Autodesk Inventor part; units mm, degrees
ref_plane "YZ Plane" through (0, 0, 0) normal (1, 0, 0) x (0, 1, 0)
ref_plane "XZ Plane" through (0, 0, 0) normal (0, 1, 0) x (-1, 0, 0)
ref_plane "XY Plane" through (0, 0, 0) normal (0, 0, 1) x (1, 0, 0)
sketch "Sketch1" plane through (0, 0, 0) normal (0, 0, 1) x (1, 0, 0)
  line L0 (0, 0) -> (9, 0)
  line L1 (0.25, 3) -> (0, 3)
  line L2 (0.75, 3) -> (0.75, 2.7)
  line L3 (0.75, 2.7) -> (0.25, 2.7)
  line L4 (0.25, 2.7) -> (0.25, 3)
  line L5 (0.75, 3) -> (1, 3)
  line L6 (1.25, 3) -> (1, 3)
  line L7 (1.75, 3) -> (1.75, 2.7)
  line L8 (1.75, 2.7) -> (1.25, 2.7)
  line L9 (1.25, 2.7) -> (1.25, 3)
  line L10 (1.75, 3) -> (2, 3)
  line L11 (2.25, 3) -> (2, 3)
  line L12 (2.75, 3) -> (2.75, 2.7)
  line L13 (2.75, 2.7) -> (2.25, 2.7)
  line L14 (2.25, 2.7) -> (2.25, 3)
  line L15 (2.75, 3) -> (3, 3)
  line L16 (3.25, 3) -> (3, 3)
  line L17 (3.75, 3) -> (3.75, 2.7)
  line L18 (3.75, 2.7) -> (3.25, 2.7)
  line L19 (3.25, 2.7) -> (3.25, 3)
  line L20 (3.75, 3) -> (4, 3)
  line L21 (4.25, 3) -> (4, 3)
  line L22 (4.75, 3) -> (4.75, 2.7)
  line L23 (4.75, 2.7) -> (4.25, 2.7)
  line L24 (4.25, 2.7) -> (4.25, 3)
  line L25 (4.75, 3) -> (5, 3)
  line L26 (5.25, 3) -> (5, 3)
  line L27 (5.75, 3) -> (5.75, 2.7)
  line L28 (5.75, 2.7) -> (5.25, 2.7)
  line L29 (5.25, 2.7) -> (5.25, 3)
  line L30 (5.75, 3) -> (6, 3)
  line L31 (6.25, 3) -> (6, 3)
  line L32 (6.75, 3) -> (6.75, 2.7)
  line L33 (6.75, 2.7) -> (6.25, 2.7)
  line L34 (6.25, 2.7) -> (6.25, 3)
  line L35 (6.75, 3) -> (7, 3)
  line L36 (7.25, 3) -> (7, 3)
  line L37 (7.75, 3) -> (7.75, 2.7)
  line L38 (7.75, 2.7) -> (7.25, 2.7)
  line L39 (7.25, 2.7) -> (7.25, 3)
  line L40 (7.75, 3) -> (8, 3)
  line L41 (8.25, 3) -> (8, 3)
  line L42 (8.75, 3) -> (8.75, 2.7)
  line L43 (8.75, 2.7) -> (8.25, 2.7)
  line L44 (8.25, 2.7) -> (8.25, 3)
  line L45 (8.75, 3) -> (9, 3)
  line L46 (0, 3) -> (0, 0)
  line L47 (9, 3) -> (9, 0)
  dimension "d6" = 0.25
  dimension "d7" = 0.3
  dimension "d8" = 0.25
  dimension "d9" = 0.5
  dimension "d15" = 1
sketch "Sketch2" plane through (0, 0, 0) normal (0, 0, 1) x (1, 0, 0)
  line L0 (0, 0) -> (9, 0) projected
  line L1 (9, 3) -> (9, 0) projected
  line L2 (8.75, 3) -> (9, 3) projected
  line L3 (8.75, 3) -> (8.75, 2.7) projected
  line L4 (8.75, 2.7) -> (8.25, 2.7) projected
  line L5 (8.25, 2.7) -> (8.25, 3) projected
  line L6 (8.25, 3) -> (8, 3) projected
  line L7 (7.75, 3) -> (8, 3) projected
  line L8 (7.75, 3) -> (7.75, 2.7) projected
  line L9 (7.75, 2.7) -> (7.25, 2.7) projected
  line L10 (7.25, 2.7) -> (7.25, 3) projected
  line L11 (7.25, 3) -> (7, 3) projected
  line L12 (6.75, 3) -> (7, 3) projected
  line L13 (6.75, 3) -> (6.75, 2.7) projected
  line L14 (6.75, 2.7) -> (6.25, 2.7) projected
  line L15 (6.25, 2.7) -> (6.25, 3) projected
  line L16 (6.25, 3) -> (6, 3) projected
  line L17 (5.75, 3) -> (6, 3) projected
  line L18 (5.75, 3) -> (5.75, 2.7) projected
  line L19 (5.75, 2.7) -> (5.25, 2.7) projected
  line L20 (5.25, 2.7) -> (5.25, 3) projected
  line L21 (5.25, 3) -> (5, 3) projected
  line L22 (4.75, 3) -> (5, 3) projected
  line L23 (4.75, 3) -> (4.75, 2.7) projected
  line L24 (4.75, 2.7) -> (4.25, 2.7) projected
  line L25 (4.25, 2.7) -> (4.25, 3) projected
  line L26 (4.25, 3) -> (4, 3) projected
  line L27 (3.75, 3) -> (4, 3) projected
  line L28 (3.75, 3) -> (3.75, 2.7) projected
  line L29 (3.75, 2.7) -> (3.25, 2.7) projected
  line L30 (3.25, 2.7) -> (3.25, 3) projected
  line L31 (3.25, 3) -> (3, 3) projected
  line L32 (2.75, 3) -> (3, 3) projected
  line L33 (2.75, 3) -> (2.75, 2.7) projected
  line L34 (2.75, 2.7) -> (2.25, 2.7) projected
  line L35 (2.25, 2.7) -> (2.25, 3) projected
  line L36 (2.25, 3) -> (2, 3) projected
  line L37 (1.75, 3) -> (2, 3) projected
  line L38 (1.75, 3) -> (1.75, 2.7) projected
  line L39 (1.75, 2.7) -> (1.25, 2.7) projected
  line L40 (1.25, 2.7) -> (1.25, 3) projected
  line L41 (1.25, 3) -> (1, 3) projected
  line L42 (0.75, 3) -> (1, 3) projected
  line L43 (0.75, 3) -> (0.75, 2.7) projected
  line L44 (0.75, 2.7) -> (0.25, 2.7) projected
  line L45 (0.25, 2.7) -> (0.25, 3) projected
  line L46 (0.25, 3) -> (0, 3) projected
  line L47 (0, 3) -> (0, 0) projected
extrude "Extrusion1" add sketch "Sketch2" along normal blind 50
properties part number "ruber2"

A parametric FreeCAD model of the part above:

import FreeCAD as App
import Part
import Sketcher


def add_polygon(sketch, points):
    """Adds a closed chain of lines whose ends are joined by coincident constraints."""
    first, n = sketch.GeometryCount, len(points)
    for a, b in zip(points, points[1:] + points[:1]):
        sketch.addGeometry(Part.LineSegment(App.Vector(*a, 0), App.Vector(*b, 0)), False)
    for i in range(n):
        sketch.addConstraint(Sketcher.Constraint("Coincident", first + i, 2, first + (i + 1) % n, 1))

doc = App.newDocument("Part")
params = doc.addObject("Spreadsheet::Sheet", "Params")
for row, (alias, value) in enumerate([
    ("sketch1_width", "9 mm"),
    ("sketch1_height", "3 mm"),
    ("sketch1_width2", "0.5 mm"),
    ("sketch1_height2", "0.3 mm"),
    ("pad1_length", "50 mm"),
], start=1):
    params.set(f"A{row}", alias)
    params.set(f"B{row}", "=" + value)
    params.setAlias(f"B{row}", alias)

body = doc.addObject("PartDesign::Body", "Body")

# Sketch on XY plane
sketch1 = body.newObject("Sketcher::SketchObject", "Sketch")
sketch1.AttachmentSupport = (doc.getObject("XY_Plane"), [""])
sketch1.MapMode = "FlatFace"
add_polygon(sketch1, [(0, 3), (0, 0), (9, 0), (9, 3), (8.75, 3), (8.75, 2.7), (8.25, 2.7), (8.25, 3), (7.75, 3), (7.75, 2.7), (7.25, 2.7), (7.25, 3), (6.75, 3), (6.75, 2.7), (6.25, 2.7), (6.25, 3), (5.75, 3), (5.75, 2.7), (5.25, 2.7), (5.25, 3), (4.75, 3), (4.75, 2.7), (4.25, 2.7), (4.25, 3), (3.75, 3), (3.75, 2.7), (3.25, 2.7), (3.25, 3), (2.75, 3), (2.75, 2.7), (2.25, 2.7), (2.25, 3), (1.75, 3), (1.75, 2.7), (1.25, 2.7), (1.25, 3), (0.75, 3), (0.75, 2.7), (0.25, 2.7), (0.25, 3)])  # lines 0-39
sketch1.addConstraint(Sketcher.Constraint("Vertical", 0))
sketch1.addConstraint(Sketcher.Constraint("Horizontal", 1))
sketch1.addConstraint(Sketcher.Constraint("Vertical", 2))
sketch1.addConstraint(Sketcher.Constraint("Horizontal", 3))
sketch1.addConstraint(Sketcher.Constraint("Vertical", 4))
sketch1.addConstraint(Sketcher.Constraint("Horizontal", 5))
sketch1.addConstraint(Sketcher.Constraint("Vertical", 6))
sketch1.addConstraint(Sketcher.Constraint("Horizontal", 7))
sketch1.addConstraint(Sketcher.Constraint("Vertical", 8))
sketch1.addConstraint(Sketcher.Constraint("Horizontal", 9))
sketch1.addConstraint(Sketcher.Constraint("Vertical", 10))
sketch1.addConstraint(Sketcher.Constraint("Horizontal", 11))
sketch1.addConstraint(Sketcher.Constraint("Vertical", 12))
sketch1.addConstraint(Sketcher.Constraint("Horizontal", 13))
sketch1.addConstraint(Sketcher.Constraint("Vertical", 14))
sketch1.addConstraint(Sketcher.Constraint("Horizontal", 15))
sketch1.addConstraint(Sketcher.Constraint("Vertical", 16))
sketch1.addConstraint(Sketcher.Constraint("Horizontal", 17))
sketch1.addConstraint(Sketcher.Constraint("Vertical", 18))
sketch1.addConstraint(Sketcher.Constraint("Horizontal", 19))
sketch1.addConstraint(Sketcher.Constraint("Vertical", 20))
sketch1.addConstraint(Sketcher.Constraint("Horizontal", 21))
sketch1.addConstraint(Sketcher.Constraint("Vertical", 22))
sketch1.addConstraint(Sketcher.Constraint("Horizontal", 23))
sketch1.addConstraint(Sketcher.Constraint("Vertical", 24))
sketch1.addConstraint(Sketcher.Constraint("Horizontal", 25))
sketch1.addConstraint(Sketcher.Constraint("Vertical", 26))
sketch1.addConstraint(Sketcher.Constraint("Horizontal", 27))
sketch1.addConstraint(Sketcher.Constraint("Vertical", 28))
sketch1.addConstraint(Sketcher.Constraint("Horizontal", 29))
sketch1.addConstraint(Sketcher.Constraint("Vertical", 30))
sketch1.addConstraint(Sketcher.Constraint("Horizontal", 31))
sketch1.addConstraint(Sketcher.Constraint("Vertical", 32))
sketch1.addConstraint(Sketcher.Constraint("Horizontal", 33))
sketch1.addConstraint(Sketcher.Constraint("Vertical", 34))
sketch1.addConstraint(Sketcher.Constraint("Horizontal", 35))
sketch1.addConstraint(Sketcher.Constraint("Vertical", 36))
sketch1.addConstraint(Sketcher.Constraint("Horizontal", 37))
sketch1.addConstraint(Sketcher.Constraint("Vertical", 38))
sketch1.addConstraint(Sketcher.Constraint("Horizontal", 39))
sketch1.addConstraint(Sketcher.Constraint("Coincident", 0, 2, -1, 1))
sketch1.addConstraint(Sketcher.Constraint("Horizontal", 3, 2, 6, 2))
sketch1.addConstraint(Sketcher.Constraint("Horizontal", 5, 2, 8, 2))
sketch1.addConstraint(Sketcher.Constraint("Horizontal", 7, 2, 10, 2))
sketch1.addConstraint(Sketcher.Constraint("Horizontal", 9, 2, 12, 2))
sketch1.addConstraint(Sketcher.Constraint("Horizontal", 11, 2, 14, 2))
sketch1.addConstraint(Sketcher.Constraint("Horizontal", 13, 2, 16, 2))
sketch1.addConstraint(Sketcher.Constraint("Horizontal", 15, 2, 18, 2))
sketch1.addConstraint(Sketcher.Constraint("Horizontal", 17, 2, 20, 2))
sketch1.addConstraint(Sketcher.Constraint("Horizontal", 19, 2, 22, 2))
sketch1.addConstraint(Sketcher.Constraint("Horizontal", 21, 2, 24, 2))
sketch1.addConstraint(Sketcher.Constraint("Horizontal", 23, 2, 26, 2))
sketch1.addConstraint(Sketcher.Constraint("Horizontal", 25, 2, 28, 2))
sketch1.addConstraint(Sketcher.Constraint("Horizontal", 27, 2, 30, 2))
sketch1.addConstraint(Sketcher.Constraint("Horizontal", 29, 2, 32, 2))
sketch1.addConstraint(Sketcher.Constraint("Horizontal", 31, 2, 34, 2))
sketch1.addConstraint(Sketcher.Constraint("Horizontal", 33, 2, 36, 2))
sketch1.addConstraint(Sketcher.Constraint("Horizontal", 35, 2, 38, 2))
sketch1.addConstraint(Sketcher.Constraint("Equal", 5, 7))
sketch1.addConstraint(Sketcher.Constraint("Equal", 7, 9))
sketch1.addConstraint(Sketcher.Constraint("Equal", 9, 11))
sketch1.addConstraint(Sketcher.Constraint("Equal", 11, 13))
sketch1.addConstraint(Sketcher.Constraint("Equal", 13, 15))
sketch1.addConstraint(Sketcher.Constraint("Equal", 15, 17))
sketch1.addConstraint(Sketcher.Constraint("Equal", 17, 19))
sketch1.addConstraint(Sketcher.Constraint("Equal", 19, 21))
sketch1.addConstraint(Sketcher.Constraint("Equal", 21, 23))
sketch1.addConstraint(Sketcher.Constraint("Equal", 23, 25))
sketch1.addConstraint(Sketcher.Constraint("Equal", 25, 27))
sketch1.addConstraint(Sketcher.Constraint("Equal", 27, 29))
sketch1.addConstraint(Sketcher.Constraint("Equal", 29, 31))
sketch1.addConstraint(Sketcher.Constraint("Equal", 31, 33))
sketch1.addConstraint(Sketcher.Constraint("Equal", 33, 35))
sketch1.addConstraint(Sketcher.Constraint("Equal", 35, 37))
sketch1.addConstraint(Sketcher.Constraint("Equal", 3, 39))
sketch1.addConstraint(Sketcher.Constraint("DistanceX", 1, 1, 1, 2, 9.0))
sketch1.addConstraint(Sketcher.Constraint("DistanceY", 0, 2, 0, 1, 3.0))
sketch1.addConstraint(Sketcher.Constraint("DistanceX", 5, 2, 5, 1, 0.5))
sketch1.addConstraint(Sketcher.Constraint("DistanceY", 4, 2, 4, 1, 0.3))
sketch1.setExpression("Constraints[115]", "Params.sketch1_width")
sketch1.setExpression("Constraints[116]", "Params.sketch1_height")
sketch1.setExpression("Constraints[117]", "Params.sketch1_width2")
sketch1.setExpression("Constraints[118]", "Params.sketch1_height2")
pad1 = body.newObject("PartDesign::Pad", "Pad")
pad1.Profile = sketch1
pad1.setExpression("Length", "Params.pad1_length")

doc.recompute()
